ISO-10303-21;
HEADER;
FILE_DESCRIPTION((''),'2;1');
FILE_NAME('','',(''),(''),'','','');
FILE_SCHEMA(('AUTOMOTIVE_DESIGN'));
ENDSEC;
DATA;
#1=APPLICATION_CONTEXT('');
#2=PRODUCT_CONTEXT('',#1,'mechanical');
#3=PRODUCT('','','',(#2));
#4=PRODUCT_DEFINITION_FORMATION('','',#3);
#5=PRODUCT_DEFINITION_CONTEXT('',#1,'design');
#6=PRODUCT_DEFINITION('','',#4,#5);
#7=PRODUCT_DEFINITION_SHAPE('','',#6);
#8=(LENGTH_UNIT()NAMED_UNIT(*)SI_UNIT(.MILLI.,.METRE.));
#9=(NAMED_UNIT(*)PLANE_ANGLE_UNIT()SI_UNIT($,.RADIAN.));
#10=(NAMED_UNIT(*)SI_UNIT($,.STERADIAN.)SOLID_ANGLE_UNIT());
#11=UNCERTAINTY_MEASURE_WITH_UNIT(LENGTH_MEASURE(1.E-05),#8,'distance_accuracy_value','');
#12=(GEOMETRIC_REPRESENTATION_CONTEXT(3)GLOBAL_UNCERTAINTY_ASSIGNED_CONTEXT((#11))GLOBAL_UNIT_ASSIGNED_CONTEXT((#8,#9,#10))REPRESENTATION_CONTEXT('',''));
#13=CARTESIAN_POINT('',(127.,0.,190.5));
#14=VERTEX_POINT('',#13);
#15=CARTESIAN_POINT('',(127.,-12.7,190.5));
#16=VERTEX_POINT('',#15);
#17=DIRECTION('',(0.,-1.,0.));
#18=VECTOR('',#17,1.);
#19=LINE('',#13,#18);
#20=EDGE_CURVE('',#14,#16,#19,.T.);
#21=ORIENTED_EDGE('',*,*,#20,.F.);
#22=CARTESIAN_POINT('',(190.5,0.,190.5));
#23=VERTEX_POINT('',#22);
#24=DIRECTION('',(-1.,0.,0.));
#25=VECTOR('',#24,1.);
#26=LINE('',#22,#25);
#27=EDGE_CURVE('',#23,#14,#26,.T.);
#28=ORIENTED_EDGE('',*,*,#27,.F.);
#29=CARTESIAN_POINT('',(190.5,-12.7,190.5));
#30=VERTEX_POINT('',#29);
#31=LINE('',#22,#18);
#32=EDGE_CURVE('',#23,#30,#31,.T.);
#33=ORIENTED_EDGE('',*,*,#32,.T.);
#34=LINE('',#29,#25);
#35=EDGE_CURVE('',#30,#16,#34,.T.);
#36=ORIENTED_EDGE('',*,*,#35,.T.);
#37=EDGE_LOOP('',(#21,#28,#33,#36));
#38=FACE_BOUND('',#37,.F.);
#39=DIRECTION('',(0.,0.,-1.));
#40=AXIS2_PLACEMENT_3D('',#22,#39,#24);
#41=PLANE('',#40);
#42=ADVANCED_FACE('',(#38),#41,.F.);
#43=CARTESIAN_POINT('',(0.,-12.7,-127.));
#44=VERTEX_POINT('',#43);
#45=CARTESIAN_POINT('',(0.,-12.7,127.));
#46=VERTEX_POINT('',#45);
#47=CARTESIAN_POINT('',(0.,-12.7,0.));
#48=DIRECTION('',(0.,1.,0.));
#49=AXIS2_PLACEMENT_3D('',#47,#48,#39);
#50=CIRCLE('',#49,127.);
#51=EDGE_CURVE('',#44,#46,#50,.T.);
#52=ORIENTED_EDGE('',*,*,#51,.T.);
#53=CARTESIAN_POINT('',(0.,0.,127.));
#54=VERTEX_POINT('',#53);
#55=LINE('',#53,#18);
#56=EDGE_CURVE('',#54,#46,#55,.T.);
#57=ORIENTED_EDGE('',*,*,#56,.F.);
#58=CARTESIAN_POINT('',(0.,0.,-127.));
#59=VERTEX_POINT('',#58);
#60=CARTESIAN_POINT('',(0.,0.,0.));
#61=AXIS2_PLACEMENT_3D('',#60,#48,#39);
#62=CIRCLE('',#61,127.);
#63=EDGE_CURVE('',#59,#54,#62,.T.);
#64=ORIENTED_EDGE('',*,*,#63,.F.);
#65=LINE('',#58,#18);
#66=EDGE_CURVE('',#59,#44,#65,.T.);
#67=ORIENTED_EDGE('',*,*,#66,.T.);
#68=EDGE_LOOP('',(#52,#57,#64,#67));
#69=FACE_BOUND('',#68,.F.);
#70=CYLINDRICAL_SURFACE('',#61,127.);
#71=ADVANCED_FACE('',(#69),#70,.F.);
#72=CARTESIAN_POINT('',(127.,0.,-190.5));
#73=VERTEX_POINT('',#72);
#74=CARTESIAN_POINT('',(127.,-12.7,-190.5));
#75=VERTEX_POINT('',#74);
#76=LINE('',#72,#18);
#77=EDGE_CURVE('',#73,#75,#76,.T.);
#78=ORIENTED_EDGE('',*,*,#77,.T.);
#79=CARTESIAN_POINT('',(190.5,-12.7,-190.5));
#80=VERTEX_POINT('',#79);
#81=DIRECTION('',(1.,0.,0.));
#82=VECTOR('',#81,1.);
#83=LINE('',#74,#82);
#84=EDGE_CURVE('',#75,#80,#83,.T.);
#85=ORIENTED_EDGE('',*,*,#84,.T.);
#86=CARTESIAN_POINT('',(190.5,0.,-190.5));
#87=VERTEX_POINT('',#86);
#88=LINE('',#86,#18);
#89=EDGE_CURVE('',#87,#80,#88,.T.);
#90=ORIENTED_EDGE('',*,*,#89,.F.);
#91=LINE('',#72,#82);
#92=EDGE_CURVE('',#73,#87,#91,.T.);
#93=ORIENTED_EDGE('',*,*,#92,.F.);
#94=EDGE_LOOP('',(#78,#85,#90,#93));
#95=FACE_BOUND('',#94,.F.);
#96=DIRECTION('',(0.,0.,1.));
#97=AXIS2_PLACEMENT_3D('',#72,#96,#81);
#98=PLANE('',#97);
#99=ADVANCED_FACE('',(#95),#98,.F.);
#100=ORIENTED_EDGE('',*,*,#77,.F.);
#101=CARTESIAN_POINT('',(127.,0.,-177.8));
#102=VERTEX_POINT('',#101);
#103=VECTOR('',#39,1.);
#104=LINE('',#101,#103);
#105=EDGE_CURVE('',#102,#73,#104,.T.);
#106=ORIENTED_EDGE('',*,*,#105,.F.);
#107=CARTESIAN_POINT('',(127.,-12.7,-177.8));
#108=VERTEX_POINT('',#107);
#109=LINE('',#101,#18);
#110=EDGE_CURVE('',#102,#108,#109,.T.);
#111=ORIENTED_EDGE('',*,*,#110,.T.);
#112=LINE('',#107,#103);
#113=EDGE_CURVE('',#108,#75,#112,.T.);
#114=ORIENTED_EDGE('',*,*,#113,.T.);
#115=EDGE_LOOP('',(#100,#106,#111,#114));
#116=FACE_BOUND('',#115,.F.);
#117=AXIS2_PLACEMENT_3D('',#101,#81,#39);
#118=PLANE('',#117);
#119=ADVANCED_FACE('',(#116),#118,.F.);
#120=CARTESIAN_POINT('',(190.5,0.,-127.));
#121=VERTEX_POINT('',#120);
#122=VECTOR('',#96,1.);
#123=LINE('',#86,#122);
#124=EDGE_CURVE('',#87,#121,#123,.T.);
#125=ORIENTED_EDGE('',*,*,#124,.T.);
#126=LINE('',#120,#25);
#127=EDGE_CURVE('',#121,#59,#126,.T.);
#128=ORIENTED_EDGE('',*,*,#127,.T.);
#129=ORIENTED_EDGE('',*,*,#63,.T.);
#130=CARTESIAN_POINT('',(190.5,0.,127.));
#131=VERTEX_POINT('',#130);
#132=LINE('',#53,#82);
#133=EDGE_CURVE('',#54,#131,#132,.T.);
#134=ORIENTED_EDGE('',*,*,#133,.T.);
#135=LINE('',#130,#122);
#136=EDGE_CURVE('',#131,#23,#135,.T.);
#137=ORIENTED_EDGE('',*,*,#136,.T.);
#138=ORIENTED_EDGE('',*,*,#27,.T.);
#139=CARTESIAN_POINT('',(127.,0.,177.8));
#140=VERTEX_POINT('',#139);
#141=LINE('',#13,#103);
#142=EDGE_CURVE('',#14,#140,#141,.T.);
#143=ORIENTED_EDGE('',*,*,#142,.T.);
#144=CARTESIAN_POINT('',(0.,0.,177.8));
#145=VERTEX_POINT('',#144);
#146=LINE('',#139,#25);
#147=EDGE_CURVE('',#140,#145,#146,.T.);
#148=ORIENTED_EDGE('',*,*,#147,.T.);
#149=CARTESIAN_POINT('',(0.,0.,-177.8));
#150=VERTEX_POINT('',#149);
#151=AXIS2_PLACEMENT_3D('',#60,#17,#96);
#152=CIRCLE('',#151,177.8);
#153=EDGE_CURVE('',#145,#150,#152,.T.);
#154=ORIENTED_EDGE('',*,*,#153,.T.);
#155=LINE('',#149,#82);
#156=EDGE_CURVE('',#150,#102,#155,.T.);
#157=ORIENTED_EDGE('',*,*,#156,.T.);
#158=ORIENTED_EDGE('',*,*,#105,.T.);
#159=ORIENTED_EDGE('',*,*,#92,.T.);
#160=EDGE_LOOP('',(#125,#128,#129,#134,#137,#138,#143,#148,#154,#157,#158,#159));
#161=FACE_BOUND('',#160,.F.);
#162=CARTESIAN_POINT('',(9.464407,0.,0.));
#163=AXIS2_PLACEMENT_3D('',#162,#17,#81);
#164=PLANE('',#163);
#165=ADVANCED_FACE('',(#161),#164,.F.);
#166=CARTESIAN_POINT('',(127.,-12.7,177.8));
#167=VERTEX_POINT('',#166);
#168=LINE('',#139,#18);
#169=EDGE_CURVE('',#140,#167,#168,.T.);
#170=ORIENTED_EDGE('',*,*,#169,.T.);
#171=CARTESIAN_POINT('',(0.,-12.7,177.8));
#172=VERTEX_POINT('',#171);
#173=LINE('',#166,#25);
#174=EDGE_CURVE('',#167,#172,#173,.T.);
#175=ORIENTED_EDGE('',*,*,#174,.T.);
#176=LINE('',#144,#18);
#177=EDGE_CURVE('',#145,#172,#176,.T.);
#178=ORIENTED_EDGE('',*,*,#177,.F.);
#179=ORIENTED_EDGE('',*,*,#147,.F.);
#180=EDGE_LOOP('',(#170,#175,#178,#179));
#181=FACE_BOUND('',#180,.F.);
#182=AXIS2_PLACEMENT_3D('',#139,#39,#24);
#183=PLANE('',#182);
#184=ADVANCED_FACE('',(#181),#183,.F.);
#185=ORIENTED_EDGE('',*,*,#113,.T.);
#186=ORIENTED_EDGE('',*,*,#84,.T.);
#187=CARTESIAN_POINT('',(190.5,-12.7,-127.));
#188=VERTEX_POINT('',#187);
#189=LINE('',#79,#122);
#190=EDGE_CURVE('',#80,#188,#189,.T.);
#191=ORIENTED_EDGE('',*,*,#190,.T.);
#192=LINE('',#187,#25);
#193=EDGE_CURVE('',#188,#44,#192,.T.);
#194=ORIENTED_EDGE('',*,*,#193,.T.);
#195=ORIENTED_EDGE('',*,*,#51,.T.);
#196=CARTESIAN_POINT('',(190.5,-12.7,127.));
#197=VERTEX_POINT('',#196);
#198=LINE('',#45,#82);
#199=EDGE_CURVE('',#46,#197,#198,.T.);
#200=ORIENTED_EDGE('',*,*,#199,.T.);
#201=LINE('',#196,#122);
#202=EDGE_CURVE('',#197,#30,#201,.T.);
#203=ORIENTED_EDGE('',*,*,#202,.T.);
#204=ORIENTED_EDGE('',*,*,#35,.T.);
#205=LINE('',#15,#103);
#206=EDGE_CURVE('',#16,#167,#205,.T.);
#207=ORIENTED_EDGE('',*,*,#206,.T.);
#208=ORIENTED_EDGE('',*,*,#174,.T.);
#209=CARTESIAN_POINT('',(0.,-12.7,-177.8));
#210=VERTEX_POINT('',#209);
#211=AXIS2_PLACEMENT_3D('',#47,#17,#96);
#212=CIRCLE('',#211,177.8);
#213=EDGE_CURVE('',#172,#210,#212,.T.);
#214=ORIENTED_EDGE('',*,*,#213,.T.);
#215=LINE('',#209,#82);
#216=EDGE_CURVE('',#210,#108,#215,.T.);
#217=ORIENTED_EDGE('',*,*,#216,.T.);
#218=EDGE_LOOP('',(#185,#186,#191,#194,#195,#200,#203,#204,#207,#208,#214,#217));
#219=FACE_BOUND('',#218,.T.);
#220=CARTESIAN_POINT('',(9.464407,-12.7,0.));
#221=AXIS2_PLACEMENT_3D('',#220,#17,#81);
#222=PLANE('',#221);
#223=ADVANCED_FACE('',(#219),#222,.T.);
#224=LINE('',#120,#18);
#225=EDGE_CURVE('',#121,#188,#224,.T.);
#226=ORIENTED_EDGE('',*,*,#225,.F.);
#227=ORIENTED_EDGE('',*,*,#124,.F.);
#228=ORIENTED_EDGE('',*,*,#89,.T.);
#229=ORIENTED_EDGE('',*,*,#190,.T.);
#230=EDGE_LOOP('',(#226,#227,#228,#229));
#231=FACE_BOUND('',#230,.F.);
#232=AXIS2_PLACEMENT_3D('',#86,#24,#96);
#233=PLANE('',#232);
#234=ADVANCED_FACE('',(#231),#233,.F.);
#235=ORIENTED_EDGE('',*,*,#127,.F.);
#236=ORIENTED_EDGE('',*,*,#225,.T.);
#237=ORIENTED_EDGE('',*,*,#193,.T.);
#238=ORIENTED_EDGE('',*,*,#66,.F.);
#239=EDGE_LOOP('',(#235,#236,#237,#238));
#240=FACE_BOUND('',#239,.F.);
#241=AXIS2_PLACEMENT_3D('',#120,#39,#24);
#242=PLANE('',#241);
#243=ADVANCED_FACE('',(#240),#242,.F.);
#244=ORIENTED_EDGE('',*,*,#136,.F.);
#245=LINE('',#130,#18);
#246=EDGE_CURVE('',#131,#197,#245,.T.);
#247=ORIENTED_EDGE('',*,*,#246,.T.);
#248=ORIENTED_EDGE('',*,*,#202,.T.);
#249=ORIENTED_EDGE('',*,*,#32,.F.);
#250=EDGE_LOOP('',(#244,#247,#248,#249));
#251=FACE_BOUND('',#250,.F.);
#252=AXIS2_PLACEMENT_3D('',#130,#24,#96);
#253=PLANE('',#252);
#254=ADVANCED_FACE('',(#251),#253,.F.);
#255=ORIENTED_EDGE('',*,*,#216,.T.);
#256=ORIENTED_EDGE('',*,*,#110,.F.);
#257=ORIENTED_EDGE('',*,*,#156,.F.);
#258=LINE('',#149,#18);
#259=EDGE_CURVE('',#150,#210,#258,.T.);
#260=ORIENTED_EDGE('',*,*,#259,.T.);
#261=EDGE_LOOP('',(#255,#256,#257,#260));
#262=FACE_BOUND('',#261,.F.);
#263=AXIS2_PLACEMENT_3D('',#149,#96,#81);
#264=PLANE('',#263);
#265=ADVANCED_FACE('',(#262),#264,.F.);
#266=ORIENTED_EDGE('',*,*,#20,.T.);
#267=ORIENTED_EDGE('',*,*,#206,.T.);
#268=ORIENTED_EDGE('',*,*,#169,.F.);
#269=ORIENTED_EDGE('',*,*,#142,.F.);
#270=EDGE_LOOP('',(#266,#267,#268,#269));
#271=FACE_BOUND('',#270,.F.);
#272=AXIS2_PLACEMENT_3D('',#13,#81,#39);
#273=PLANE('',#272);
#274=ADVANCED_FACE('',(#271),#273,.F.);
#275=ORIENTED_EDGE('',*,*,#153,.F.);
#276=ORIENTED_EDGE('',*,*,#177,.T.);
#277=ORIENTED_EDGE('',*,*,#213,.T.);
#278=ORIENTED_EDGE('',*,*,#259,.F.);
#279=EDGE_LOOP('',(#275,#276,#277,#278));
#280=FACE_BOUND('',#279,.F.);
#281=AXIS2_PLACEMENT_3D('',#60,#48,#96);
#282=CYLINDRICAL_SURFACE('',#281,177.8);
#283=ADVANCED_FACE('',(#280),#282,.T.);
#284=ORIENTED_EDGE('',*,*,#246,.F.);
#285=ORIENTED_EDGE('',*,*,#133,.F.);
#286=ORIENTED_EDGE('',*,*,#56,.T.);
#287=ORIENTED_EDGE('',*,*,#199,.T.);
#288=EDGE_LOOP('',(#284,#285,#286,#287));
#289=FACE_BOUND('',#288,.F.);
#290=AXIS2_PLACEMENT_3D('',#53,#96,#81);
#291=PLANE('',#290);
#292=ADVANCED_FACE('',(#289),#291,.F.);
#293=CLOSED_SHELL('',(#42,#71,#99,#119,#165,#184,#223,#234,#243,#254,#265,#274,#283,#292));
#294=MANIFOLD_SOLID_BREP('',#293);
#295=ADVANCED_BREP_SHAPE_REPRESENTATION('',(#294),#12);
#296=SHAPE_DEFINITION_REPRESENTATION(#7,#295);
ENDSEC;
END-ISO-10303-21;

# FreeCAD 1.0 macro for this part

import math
import FreeCAD as App
import Part
import Sketcher

V = App.Vector
Q = App.Units.Quantity

doc = App.newDocument("Part")
params = doc.addObject("Spreadsheet::Sheet", "Params")
for row, (alias, value) in enumerate([
    ("sketch1_radius", "5 in"),
    ("sketch1_radius2", "7 in"),
    ("sketch1_width", "5 in"),
    ("sketch1_width2", "2.5 in"),
    ("pad1_length", "0.5 in"),
], start=1):
    params.set(f"A{row}", alias)
    params.set(f"B{row}", "=" + value)
    params.setAlias(f"B{row}", alias)

body = doc.addObject("PartDesign::Body", "Body")

# Sketch on XZ plane
sketch1 = doc.addObject("Sketcher::SketchObject", "Sketch")
body.addObject(sketch1)
sketch1.AttachmentSupport = (doc.XZ_Plane, [""])
sketch1.MapMode = "FlatFace"
sketch1.addGeometry(Part.LineSegment(V(0, -178, 0), V(127, -178, 0)), False)
sketch1.addGeometry(Part.LineSegment(V(127, -178, 0), V(127, -190, 0)), False)
sketch1.addGeometry(Part.LineSegment(V(127, -190, 0), V(190, -190, 0)), False)
sketch1.addGeometry(Part.LineSegment(V(190, -190, 0), V(190, -127, 0)), False)
sketch1.addGeometry(Part.LineSegment(V(190, -127, 0), V(0, -127, 0)), False)
sketch1.addGeometry(Part.ArcOfCircle(Part.Circle(V(0, 0, 0), V(0, 0, 1), 127), math.radians(90), math.radians(270)), False)
sketch1.addGeometry(Part.LineSegment(V(0, 127, 0), V(190, 127, 0)), False)
sketch1.addGeometry(Part.LineSegment(V(190, 127, 0), V(190, 190, 0)), False)
sketch1.addGeometry(Part.LineSegment(V(190, 190, 0), V(127, 190, 0)), False)
sketch1.addGeometry(Part.LineSegment(V(127, 190, 0), V(127, 178, 0)), False)
sketch1.addGeometry(Part.LineSegment(V(127, 178, 0), V(0, 178, 0)), False)
sketch1.addGeometry(Part.ArcOfCircle(Part.Circle(V(0, 0, 0), V(0, 0, 1), 178), math.radians(90), math.radians(270)), False)
sketch1.addConstraint(Sketcher.Constraint("Coincident", 0, 2, 1, 1))
sketch1.addConstraint(Sketcher.Constraint("Coincident", 1, 2, 2, 1))
sketch1.addConstraint(Sketcher.Constraint("Coincident", 2, 2, 3, 1))
sketch1.addConstraint(Sketcher.Constraint("Coincident", 3, 2, 4, 1))
sketch1.addConstraint(Sketcher.Constraint("Tangent", 4, 2, 5, 2))
sketch1.addConstraint(Sketcher.Constraint("Tangent", 5, 1, 6, 1))
sketch1.addConstraint(Sketcher.Constraint("Coincident", 6, 2, 7, 1))
sketch1.addConstraint(Sketcher.Constraint("Coincident", 7, 2, 8, 1))
sketch1.addConstraint(Sketcher.Constraint("Coincident", 8, 2, 9, 1))
sketch1.addConstraint(Sketcher.Constraint("Coincident", 9, 2, 10, 1))
sketch1.addConstraint(Sketcher.Constraint("Tangent", 10, 2, 11, 1))
sketch1.addConstraint(Sketcher.Constraint("Tangent", 11, 2, 0, 1))
sketch1.addConstraint(Sketcher.Constraint("Horizontal", 0))
sketch1.addConstraint(Sketcher.Constraint("Vertical", 1))
sketch1.addConstraint(Sketcher.Constraint("Horizontal", 2))
sketch1.addConstraint(Sketcher.Constraint("Vertical", 3))
sketch1.addConstraint(Sketcher.Constraint("Horizontal", 4))
sketch1.addConstraint(Sketcher.Constraint("Horizontal", 6))
sketch1.addConstraint(Sketcher.Constraint("Vertical", 7))
sketch1.addConstraint(Sketcher.Constraint("Horizontal", 8))
sketch1.addConstraint(Sketcher.Constraint("Vertical", 9))
sketch1.addConstraint(Sketcher.Constraint("Horizontal", 10))
sketch1.addConstraint(Sketcher.Constraint("Coincident", 5, 3, -1, 1))
sketch1.addConstraint(Sketcher.Constraint("Coincident", 11, 3, -1, 1))
sketch1.addConstraint(Sketcher.Constraint("Symmetric", 2, 2, 7, 2, -1))
sketch1.addConstraint(Sketcher.Constraint("Vertical", 1, 2, 8, 2))
sketch1.addConstraint(Sketcher.Constraint("Equal", 8, 3))
sketch1.addConstraint(Sketcher.Constraint("Radius", 5, Q("5 in")))
sketch1.addConstraint(Sketcher.Constraint("Radius", 11, Q("7 in")))
sketch1.addConstraint(Sketcher.Constraint("DistanceX", 0, 1, 0, 2, Q("5 in")))
sketch1.addConstraint(Sketcher.Constraint("DistanceX", 2, 1, 2, 2, Q("2.5 in")))
sketch1.setExpression("Constraints[27]", "Params.sketch1_radius")
sketch1.setExpression("Constraints[28]", "Params.sketch1_radius2")
sketch1.setExpression("Constraints[29]", "Params.sketch1_width")
sketch1.setExpression("Constraints[30]", "Params.sketch1_width2")
pad1 = doc.addObject("PartDesign::Pad", "Pad")
body.addObject(pad1)
pad1.Profile = sketch1
pad1.setExpression("Length", "Params.pad1_length")

doc.recompute()
